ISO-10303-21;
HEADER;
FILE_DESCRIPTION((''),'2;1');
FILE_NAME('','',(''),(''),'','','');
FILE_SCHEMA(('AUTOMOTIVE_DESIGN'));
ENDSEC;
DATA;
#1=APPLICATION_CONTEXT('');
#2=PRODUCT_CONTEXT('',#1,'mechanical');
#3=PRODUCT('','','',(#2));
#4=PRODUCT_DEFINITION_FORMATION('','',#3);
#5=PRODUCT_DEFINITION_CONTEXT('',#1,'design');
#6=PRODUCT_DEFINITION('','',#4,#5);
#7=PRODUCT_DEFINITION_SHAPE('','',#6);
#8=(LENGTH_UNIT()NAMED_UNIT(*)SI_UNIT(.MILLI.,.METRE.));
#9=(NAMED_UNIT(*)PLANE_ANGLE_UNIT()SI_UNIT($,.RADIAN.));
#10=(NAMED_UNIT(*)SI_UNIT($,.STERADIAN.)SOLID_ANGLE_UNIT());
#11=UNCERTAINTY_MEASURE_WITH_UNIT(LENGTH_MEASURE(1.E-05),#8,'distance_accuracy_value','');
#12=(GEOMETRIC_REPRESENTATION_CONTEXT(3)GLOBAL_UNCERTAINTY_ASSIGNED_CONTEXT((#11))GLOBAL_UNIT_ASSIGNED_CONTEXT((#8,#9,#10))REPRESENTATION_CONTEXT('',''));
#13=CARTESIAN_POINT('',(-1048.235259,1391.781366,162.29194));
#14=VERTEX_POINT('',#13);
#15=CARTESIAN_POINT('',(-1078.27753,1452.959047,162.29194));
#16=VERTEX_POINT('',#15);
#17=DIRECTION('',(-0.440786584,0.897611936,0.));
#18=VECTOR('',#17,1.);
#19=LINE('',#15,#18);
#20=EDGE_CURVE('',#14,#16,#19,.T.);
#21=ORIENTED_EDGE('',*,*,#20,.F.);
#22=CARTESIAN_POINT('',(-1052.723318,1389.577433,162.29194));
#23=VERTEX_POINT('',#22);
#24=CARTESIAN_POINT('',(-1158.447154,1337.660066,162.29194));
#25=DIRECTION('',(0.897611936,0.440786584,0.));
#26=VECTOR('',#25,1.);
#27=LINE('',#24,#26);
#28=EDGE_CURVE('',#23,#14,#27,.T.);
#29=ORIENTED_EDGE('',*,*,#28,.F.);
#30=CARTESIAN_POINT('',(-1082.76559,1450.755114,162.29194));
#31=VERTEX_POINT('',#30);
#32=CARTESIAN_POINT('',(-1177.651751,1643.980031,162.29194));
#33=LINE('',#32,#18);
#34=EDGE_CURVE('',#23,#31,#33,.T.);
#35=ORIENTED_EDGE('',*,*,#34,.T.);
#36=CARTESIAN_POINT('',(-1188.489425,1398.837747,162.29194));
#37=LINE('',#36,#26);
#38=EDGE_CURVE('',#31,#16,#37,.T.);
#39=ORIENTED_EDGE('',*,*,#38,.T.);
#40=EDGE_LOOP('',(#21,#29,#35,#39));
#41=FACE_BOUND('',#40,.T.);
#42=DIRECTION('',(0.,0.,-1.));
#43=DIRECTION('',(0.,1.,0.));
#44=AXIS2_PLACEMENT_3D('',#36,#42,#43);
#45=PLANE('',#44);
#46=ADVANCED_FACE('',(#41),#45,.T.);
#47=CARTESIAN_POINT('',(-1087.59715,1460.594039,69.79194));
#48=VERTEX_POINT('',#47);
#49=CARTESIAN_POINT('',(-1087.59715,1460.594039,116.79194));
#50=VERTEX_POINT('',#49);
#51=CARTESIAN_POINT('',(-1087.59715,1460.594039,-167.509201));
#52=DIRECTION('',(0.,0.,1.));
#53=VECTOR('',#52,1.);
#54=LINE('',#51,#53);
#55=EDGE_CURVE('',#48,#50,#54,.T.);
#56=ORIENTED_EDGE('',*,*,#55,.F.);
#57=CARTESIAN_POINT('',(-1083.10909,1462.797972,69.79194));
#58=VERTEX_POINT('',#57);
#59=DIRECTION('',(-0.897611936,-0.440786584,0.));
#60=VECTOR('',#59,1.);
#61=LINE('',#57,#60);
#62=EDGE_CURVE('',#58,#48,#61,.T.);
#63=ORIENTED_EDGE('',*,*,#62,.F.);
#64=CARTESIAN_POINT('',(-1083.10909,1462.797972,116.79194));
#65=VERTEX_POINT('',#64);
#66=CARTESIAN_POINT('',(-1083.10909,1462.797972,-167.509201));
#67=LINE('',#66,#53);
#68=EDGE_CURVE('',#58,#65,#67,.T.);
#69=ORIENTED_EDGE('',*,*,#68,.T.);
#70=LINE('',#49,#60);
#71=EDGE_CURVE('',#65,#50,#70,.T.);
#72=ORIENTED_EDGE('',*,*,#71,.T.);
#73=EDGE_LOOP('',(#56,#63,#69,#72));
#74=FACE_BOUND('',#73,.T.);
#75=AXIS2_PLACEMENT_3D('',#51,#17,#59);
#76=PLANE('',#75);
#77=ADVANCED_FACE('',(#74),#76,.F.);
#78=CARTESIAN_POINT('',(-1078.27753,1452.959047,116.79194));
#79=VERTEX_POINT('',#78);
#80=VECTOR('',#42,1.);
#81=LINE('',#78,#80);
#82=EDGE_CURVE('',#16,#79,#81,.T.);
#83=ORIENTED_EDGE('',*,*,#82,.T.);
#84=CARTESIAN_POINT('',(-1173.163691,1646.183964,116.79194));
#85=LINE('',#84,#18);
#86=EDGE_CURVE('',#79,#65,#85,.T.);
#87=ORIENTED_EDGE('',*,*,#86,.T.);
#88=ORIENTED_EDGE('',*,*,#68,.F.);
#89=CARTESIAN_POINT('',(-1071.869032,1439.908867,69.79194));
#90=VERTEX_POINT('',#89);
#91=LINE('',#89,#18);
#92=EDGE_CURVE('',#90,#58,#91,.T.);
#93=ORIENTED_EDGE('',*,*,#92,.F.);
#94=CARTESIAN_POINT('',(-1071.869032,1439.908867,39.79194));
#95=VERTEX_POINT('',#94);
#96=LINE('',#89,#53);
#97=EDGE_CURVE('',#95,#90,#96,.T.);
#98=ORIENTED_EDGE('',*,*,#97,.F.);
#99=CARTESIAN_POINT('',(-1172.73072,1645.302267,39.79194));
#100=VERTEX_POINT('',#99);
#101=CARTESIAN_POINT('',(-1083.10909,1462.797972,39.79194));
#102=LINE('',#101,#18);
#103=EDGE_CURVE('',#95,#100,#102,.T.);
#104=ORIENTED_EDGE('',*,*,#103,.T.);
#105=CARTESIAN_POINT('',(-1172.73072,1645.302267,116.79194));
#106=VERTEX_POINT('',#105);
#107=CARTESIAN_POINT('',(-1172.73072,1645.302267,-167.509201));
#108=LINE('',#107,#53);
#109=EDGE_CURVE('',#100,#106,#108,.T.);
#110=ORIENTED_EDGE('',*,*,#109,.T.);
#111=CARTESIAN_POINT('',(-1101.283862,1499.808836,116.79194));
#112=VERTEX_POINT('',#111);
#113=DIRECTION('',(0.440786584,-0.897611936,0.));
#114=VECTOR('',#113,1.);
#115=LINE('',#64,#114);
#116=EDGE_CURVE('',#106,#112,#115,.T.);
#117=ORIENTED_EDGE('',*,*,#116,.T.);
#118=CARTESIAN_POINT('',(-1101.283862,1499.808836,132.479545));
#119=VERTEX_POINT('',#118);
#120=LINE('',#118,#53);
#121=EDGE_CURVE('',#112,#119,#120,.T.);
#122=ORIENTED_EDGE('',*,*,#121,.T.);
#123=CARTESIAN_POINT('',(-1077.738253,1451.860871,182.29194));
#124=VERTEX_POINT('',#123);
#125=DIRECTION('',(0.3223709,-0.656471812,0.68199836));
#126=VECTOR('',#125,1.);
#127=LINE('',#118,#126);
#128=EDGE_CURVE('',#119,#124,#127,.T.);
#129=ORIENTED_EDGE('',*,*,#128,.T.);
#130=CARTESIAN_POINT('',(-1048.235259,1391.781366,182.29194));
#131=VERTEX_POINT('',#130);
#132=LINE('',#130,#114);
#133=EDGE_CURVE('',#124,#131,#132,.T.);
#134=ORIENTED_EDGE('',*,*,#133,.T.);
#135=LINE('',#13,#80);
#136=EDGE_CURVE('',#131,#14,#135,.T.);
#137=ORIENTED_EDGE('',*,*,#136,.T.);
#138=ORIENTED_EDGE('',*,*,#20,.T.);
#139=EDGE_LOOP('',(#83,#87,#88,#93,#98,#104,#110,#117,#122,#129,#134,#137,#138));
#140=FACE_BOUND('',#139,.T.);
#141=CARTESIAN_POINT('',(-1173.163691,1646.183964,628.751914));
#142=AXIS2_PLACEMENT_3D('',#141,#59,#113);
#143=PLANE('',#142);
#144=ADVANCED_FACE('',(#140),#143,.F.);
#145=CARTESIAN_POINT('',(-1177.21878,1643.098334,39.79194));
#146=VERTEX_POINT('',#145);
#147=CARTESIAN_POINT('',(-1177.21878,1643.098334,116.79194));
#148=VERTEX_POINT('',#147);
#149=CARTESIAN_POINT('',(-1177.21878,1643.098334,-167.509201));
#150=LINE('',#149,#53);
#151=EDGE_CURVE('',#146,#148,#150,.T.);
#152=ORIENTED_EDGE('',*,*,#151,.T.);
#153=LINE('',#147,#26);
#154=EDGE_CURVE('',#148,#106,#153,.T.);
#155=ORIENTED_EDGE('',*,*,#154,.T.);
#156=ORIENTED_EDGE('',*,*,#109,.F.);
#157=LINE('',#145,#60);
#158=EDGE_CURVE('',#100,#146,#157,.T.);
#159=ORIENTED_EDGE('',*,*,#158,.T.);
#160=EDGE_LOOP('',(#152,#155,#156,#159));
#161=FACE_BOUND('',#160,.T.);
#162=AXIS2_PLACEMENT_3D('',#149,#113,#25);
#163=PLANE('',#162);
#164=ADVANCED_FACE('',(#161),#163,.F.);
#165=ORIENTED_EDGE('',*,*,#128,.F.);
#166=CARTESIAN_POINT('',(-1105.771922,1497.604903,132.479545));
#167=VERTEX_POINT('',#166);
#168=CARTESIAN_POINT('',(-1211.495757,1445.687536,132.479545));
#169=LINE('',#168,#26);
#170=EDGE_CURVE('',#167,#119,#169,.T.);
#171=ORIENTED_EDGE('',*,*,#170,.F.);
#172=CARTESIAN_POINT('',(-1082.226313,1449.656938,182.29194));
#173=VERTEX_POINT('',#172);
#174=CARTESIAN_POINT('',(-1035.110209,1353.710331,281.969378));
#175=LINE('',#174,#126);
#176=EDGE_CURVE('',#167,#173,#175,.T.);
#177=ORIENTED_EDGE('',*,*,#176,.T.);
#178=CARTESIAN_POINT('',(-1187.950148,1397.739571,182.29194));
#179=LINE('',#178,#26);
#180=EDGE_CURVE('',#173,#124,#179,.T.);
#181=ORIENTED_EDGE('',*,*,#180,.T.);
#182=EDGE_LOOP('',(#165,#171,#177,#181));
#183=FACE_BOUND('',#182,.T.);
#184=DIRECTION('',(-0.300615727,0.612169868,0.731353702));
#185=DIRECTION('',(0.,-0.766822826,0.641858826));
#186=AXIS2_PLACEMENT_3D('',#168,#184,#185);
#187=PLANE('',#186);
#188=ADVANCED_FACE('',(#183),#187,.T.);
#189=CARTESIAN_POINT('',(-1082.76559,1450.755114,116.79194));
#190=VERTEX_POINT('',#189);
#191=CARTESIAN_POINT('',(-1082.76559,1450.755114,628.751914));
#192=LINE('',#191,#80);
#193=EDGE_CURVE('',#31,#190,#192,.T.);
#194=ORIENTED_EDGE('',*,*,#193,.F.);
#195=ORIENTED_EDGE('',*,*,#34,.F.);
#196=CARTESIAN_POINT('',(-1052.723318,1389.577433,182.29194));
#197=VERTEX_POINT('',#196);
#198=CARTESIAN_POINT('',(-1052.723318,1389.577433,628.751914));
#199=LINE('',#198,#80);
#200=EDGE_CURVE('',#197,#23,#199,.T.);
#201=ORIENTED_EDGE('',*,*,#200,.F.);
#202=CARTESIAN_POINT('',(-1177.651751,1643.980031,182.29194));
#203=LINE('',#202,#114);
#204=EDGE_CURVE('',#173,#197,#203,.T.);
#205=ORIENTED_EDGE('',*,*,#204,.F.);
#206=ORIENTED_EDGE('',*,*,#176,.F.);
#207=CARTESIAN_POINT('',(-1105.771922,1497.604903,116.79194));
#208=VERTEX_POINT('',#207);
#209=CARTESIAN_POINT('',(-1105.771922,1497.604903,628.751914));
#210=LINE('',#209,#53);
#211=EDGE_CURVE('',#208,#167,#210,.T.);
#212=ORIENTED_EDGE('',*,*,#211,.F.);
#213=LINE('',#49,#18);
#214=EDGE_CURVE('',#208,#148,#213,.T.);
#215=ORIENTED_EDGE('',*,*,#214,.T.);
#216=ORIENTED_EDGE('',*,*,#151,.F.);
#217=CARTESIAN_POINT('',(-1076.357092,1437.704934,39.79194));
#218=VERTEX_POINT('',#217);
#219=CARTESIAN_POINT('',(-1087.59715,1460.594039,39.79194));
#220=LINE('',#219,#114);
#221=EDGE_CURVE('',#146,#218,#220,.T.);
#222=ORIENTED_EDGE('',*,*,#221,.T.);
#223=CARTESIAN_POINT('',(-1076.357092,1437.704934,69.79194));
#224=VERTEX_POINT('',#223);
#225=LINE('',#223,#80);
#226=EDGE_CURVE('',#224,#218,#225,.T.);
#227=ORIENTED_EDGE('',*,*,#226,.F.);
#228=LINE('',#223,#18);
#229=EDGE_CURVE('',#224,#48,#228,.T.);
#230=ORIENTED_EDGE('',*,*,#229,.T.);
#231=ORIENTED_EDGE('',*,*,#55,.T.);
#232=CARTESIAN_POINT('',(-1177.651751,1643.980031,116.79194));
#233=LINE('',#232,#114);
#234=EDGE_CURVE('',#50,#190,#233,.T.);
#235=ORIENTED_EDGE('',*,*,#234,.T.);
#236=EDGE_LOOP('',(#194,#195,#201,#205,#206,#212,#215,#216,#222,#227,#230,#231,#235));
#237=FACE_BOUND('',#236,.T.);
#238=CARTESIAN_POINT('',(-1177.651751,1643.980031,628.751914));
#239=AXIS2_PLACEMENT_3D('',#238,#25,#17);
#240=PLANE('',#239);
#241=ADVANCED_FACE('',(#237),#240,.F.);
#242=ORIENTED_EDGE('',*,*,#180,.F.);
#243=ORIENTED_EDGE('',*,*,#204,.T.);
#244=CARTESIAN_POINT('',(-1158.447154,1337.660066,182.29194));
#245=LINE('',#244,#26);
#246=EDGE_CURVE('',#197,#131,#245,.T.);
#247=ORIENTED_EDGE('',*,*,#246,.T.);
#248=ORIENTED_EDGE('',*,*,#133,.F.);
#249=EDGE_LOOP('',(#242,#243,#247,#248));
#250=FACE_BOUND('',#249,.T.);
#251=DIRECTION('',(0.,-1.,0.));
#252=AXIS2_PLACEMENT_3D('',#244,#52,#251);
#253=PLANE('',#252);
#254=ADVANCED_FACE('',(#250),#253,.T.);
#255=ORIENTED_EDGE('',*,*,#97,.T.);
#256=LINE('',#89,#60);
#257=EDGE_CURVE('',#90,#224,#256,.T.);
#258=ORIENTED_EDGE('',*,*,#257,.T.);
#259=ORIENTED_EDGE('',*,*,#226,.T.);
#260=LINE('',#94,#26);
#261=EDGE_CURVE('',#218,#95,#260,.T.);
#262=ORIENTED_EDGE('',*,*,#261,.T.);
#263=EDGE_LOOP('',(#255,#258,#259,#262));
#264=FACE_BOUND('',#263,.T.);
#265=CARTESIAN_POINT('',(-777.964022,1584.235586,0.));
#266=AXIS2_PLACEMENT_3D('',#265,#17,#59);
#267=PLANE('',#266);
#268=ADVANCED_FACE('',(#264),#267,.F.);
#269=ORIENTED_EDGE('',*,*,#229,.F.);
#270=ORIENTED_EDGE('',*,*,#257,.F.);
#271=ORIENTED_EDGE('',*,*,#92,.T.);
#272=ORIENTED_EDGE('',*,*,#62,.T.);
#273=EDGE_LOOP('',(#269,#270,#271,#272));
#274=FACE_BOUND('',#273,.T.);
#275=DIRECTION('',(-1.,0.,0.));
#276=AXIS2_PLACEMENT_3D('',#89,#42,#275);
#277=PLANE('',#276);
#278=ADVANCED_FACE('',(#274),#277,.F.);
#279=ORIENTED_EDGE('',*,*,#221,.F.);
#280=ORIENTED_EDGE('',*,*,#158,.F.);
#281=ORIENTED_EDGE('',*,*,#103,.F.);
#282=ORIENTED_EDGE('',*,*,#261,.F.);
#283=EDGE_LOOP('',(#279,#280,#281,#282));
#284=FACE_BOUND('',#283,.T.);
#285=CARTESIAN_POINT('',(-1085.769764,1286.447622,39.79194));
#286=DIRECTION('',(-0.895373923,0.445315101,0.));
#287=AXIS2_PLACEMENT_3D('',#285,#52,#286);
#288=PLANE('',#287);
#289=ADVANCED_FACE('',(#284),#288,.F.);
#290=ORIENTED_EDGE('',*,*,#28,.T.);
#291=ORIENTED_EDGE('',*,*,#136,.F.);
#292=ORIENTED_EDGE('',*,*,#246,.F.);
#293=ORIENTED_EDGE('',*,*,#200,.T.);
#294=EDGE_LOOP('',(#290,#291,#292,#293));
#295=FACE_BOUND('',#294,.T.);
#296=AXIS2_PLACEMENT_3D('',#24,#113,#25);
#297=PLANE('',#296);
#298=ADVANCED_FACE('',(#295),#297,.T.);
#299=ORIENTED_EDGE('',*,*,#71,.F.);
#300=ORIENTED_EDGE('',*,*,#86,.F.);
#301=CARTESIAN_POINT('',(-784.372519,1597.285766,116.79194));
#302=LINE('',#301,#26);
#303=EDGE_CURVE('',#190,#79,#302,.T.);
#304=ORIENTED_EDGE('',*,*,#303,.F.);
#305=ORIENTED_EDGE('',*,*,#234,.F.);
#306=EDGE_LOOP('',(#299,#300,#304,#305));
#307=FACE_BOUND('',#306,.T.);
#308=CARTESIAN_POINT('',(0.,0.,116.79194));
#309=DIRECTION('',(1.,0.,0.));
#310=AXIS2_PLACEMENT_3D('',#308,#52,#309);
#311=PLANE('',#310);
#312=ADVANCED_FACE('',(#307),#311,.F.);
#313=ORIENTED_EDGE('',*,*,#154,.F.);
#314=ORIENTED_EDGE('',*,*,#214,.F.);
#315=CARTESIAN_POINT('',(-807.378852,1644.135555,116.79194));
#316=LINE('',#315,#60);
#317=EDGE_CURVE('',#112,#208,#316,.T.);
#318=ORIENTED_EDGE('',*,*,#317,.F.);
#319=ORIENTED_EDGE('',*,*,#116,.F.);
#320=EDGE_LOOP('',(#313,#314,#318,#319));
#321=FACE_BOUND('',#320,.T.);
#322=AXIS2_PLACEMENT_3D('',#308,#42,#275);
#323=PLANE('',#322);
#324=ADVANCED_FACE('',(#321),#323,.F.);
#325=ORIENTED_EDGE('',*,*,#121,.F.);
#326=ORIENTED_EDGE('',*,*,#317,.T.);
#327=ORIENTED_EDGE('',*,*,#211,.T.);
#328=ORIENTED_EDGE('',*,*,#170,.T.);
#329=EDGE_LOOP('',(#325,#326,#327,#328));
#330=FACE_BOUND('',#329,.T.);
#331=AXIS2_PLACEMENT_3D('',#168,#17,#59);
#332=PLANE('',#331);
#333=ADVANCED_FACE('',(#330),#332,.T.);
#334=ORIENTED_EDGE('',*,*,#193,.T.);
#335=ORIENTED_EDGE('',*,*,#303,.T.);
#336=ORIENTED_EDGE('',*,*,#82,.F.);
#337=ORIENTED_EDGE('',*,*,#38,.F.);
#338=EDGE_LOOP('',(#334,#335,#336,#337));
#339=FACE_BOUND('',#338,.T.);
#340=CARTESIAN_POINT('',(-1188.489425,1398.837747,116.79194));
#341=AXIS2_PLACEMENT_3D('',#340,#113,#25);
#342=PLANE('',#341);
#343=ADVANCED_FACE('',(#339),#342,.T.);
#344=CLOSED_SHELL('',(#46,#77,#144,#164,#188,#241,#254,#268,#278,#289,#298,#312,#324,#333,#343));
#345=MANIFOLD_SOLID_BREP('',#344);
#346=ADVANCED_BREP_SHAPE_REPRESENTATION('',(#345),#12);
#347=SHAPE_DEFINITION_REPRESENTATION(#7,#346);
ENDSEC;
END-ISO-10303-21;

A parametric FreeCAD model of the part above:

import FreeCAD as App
import Part
import Sketcher

V = App.Vector
Q = App.Units.Quantity


def add_polygon(sketch, points):
    """Adds a closed chain of lines whose ends are joined by coincident constraints."""
    first, n = sketch.GeometryCount, len(points)
    for a, b in zip(points, points[1:] + points[:1]):
        sketch.addGeometry(Part.LineSegment(App.Vector(*a, 0), App.Vector(*b, 0)), False)
    for i in range(n):
        sketch.addConstraint(Sketcher.Constraint("Coincident", first + i, 2, first + (i + 1) % n, 1))

doc = App.newDocument("Part")
body = doc.addObject("PartDesign::Body", "Body")

# Sketch on XY plane
sketch1 = body.newObject("Sketcher::SketchObject", "Sketch")
sketch1.AttachmentSupport = (doc.getObject("XY_Plane"), [""])
sketch1.MapMode = "FlatFace"
sketch1.AttachmentOffset = App.Placement(V(0, 0, 116.79194), App.Rotation())
add_polygon(sketch1, [(-1173.2, 1646.2), (-1177.7, 1644), (-1046.4, 1376.8), (-1041.9, 1379)])  # lines 0-3
sketch1.addConstraint([
    Sketcher.Constraint("Perpendicular", 0, 1),
    Sketcher.Constraint("Perpendicular", 1, 2),
    Sketcher.Constraint("Perpendicular", 2, 3),
    Sketcher.Constraint("Distance", 0, Q("5 mm")),
    Sketcher.Constraint("DistanceX", 0, 2, -1, 1, Q("1177.651751 mm")),
    Sketcher.Constraint("DistanceY", -1, 1, 0, 2, Q("1643.980031 mm")),
    Sketcher.Constraint("DistanceX", 1, 2, -1, 1, Q("1046.433069 mm")),
    Sketcher.Constraint("DistanceY", -1, 1, 1, 2, Q("1376.768052 mm")),
])
pad1 = body.newObject("PartDesign::Pad", "Pad")
pad1.Profile = sketch1
pad1.Length = 210.295833

# Sketch on an angled plane
sketch2 = body.newObject("Sketcher::SketchObject", "Sketch001")
sketch2.Placement = App.Placement(V(-293.905011, -144.326719, 0), App.Rotation(V(0, 0, 1), V(-0.440786584, 0.897611936, 0), V(-0.897611936, -0.440786584, 0), "ZXY"))
add_polygon(sketch2, [(117, 1832), (132, 1832), (182, 1778), (182, 1711), (162, 1711), (162, 1779), (117, 1779), (117, 1623), (327, 1623), (327, 1995), (117, 1995)])  # lines 0-10
sketch2.addConstraint([
    Sketcher.Constraint("Horizontal", 0),
    Sketcher.Constraint("Vertical", 2),
    Sketcher.Constraint("Horizontal", 3),
    Sketcher.Constraint("Vertical", 4),
    Sketcher.Constraint("Horizontal", 5),
    Sketcher.Constraint("Vertical", 6),
    Sketcher.Constraint("Horizontal", 7),
    Sketcher.Constraint("Vertical", 8),
    Sketcher.Constraint("Horizontal", 9),
    Sketcher.Constraint("Vertical", 10),
    Sketcher.Constraint("Vertical", 6, 2, 9, 2),
    Sketcher.Constraint("DistanceX", 3, 2, 3, 1, Q("20 mm")),
    Sketcher.Constraint("Angle", 1, Q("-47 deg")),
    Sketcher.Constraint("DistanceX", 5, 2, 5, 1, Q("45.5 mm")),
    Sketcher.Constraint("DistanceY", 6, 2, 6, 1, Q("156.049571 mm")),
    Sketcher.Constraint("DistanceY", 8, 1, 8, 2, Q("371.31511 mm")),
    Sketcher.Constraint("Distance", 1, Q("73.038878 mm")),
    Sketcher.Constraint("DistanceX", 7, 1, 7, 2, Q("210.295833 mm")),
    Sketcher.Constraint("DistanceY", 2, 2, 2, 1, Q("66.932605 mm")),
    Sketcher.Constraint("DistanceY", 4, 1, 4, 2, Q("68.156047 mm")),
    Sketcher.Constraint("DistanceX", -1, 1, 1, 2, Q("182.29194 mm")),
    Sketcher.Constraint("DistanceY", -1, 1, 1, 2, Q("1778.26021 mm")),
])
pocket1 = body.newObject("PartDesign::Pocket", "Pocket")
pocket1.Profile = sketch2
pocket1.Type = "ThroughAll"
pocket1.Reversed = True

# Sketch on XY plane
sketch3 = body.newObject("Sketcher::SketchObject", "Sketch002")
sketch3.AttachmentSupport = (doc.getObject("XY_Plane"), [""])
sketch3.MapMode = "FlatFace"
sketch3.AttachmentOffset = App.Placement(V(0, 0, 116.79194), App.Rotation())
add_polygon(sketch3, [(-1083.10909, 1462.797972), (-1087.59715, 1460.594039), (-1177.21878, 1643.098334), (-1172.73072, 1645.302267)])  # lines 0-3
sketch3.addConstraint([
    Sketcher.Constraint("Perpendicular", 0, 1),
    Sketcher.Constraint("Perpendicular", 1, 2),
    Sketcher.Constraint("Perpendicular", 2, 3),
    Sketcher.Constraint("Distance", 0, Q("5 mm")),
    Sketcher.Constraint("DistanceX", 0, 2, -1, 1, Q("1087.59715 mm")),
    Sketcher.Constraint("DistanceY", -1, 1, 0, 2, Q("1460.594039 mm")),
    Sketcher.Constraint("DistanceX", 1, 2, -1, 1, Q("1177.21878 mm")),
    Sketcher.Constraint("DistanceX", 2, 2, -1, 1, Q("1172.73072 mm")),
])
pad2 = body.newObject("PartDesign::Pad", "Pad001")
pad2.Profile = sketch3
pad2.Length = 77
pad2.Reversed = True

# Sketch on an angled plane
sketch4 = body.newObject("Sketcher::SketchObject", "Sketch003")
sketch4.Placement = App.Placement(V(-789.20408, 1607.124691, 0), App.Rotation(V(0.897611936, 0.440786584, 0), V(0, 0, 1), V(0.440786584, -0.897611936, 0), "ZXY"))
add_polygon(sketch4, [(-332, 70), (-332, 40), (-327, 40), (-327, 70)])  # lines 0-3
sketch4.addConstraint([
    Sketcher.Constraint("Vertical", 0),
    Sketcher.Constraint("Horizontal", 1),
    Sketcher.Constraint("Vertical", 2),
    Sketcher.Constraint("Horizontal", 3),
    Sketcher.Constraint("DistanceX", 1, 1, 1, 2, Q("5 mm")),
    Sketcher.Constraint("DistanceY", 0, 2, 0, 1, Q("30 mm")),
    Sketcher.Constraint("DistanceY", -1, 1, 0, 2, Q("39.79194 mm")),
    Sketcher.Constraint("DistanceX", 0, 2, -1, 1, Q("332.429927 mm")),
])
pad3 = body.newObject("PartDesign::Pad", "Pad002")
pad3.Profile = sketch4
pad3.Length = 25.5

doc.recompute()
